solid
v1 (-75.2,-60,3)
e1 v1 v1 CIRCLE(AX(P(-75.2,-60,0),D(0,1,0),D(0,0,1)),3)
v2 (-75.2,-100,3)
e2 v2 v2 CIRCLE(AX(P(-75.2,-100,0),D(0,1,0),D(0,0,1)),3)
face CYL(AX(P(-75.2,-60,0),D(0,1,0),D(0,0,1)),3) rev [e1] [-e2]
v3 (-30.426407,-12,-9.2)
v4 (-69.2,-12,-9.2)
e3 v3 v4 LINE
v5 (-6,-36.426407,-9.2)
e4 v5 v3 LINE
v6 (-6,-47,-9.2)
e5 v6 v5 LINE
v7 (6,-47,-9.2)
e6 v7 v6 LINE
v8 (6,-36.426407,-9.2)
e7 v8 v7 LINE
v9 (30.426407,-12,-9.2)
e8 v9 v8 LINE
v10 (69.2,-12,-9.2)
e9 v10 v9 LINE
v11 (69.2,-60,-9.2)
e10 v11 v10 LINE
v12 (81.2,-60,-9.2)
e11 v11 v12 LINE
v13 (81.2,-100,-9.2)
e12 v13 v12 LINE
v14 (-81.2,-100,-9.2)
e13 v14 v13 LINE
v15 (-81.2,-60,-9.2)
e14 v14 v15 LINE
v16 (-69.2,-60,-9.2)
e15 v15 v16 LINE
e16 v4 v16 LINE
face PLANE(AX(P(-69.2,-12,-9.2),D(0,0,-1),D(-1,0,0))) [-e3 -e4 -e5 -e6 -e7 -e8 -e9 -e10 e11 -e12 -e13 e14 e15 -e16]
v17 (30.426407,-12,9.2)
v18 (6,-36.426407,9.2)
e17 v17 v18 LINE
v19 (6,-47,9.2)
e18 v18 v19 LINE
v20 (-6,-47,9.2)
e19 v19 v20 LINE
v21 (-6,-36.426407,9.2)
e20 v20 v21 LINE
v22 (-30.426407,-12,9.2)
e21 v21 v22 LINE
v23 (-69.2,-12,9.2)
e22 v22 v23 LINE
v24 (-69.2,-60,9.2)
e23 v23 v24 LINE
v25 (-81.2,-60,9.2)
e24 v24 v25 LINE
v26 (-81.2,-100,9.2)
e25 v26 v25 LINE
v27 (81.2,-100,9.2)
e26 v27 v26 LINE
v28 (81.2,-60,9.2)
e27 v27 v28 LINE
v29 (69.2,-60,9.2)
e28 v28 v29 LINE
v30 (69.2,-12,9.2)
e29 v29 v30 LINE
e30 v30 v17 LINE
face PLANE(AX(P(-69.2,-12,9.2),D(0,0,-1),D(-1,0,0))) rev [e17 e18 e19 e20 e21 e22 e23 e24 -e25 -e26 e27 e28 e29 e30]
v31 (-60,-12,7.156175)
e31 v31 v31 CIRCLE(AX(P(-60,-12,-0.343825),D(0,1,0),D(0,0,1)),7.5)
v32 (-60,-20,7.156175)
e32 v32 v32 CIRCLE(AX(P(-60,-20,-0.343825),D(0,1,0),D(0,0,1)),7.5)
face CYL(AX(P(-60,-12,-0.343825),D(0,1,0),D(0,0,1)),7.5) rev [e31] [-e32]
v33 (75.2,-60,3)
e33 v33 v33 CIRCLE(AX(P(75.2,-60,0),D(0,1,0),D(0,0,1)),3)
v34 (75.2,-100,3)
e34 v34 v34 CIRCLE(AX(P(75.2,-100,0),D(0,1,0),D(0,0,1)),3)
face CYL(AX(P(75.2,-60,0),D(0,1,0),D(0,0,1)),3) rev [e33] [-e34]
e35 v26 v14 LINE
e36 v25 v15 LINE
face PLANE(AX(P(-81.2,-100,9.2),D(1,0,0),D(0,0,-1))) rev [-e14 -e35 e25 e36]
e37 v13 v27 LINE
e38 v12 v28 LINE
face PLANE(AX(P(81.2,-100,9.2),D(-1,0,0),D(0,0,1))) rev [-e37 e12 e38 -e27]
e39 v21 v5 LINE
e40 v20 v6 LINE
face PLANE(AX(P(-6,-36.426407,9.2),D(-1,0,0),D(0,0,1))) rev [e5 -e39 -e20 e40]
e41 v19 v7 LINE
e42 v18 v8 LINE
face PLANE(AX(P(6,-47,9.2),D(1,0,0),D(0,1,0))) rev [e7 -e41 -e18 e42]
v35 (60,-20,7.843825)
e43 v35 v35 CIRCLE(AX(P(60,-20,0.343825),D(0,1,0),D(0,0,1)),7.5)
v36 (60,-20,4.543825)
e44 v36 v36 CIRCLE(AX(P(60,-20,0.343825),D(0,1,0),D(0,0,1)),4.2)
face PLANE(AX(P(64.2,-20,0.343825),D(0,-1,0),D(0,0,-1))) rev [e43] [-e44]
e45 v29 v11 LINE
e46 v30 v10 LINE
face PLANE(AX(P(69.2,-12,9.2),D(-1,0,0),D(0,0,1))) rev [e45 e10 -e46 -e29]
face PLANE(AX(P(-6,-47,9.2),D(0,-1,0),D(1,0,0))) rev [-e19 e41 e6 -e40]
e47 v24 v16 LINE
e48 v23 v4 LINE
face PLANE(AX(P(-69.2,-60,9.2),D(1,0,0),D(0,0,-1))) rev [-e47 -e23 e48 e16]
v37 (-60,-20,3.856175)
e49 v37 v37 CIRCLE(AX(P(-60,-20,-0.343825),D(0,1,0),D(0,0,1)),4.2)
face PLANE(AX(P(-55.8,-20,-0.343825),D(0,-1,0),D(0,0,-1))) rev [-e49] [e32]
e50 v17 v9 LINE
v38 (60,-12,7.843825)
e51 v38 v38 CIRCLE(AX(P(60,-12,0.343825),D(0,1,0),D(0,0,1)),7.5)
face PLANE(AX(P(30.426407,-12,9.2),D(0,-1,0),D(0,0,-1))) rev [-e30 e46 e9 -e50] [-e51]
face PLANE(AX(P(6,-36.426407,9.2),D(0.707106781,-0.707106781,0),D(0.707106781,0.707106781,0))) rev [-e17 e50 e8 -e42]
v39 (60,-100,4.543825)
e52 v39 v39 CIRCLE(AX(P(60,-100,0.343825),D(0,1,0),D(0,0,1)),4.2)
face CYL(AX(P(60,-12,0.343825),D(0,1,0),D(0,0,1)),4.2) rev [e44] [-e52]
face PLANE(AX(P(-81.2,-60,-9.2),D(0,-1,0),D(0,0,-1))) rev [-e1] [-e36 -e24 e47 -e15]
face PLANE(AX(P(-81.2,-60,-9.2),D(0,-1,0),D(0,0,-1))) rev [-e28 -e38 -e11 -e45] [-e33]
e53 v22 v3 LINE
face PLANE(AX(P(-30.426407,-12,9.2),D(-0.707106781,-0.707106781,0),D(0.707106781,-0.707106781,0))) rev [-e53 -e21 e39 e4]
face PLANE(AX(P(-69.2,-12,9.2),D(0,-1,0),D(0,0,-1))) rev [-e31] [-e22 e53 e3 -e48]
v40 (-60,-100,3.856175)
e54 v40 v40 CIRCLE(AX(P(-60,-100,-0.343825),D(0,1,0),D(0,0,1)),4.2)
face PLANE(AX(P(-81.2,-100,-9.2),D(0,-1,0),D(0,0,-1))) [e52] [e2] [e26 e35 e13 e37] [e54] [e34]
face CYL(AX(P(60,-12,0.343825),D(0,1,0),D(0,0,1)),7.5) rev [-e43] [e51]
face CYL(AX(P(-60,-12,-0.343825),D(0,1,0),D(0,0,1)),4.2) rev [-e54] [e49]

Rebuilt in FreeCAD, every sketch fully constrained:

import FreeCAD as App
import Part
import Sketcher
from FreeCAD import Vector
Q = App.Units.Quantity

doc = App.newDocument("Part")
body = doc.addObject("PartDesign::Body", "Body")

# Sketch on XY plane
sketch1 = body.newObject("Sketcher::SketchObject", "Sketch")
sketch1.AttachmentSupport = (doc.getObject("XY_Plane"), [""])
sketch1.MapMode = "FlatFace"
sketch1.addGeometry([
    Part.LineSegment(Vector(-30, -12, 0), Vector(-69, -12, 0)),  # 0
    Part.LineSegment(Vector(-69, -12, 0), Vector(-69, -60, 0)),  # 1
    Part.LineSegment(Vector(-69, -60, 0), Vector(69, -60, 0)),  # 2
    Part.LineSegment(Vector(69, -60, 0), Vector(69, -12, 0)),  # 3
    Part.LineSegment(Vector(69, -12, 0), Vector(30, -12, 0)),  # 4
    Part.LineSegment(Vector(30, -12, 0), Vector(6, -36, 0)),  # 5
    Part.LineSegment(Vector(6, -36, 0), Vector(6, -47, 0)),  # 6
    Part.LineSegment(Vector(6, -47, 0), Vector(-6, -47, 0)),  # 7
    Part.LineSegment(Vector(-6, -47, 0), Vector(-6, -36, 0)),  # 8
    Part.LineSegment(Vector(-6, -36, 0), Vector(-30, -12, 0)),  # 9
], False)
sketch1.addConstraint([
    Sketcher.Constraint("Coincident", 0, 2, 1, 1),
    Sketcher.Constraint("Coincident", 1, 2, 2, 1),
    Sketcher.Constraint("Coincident", 2, 2, 3, 1),
    Sketcher.Constraint("Coincident", 3, 2, 4, 1),
    Sketcher.Constraint("Coincident", 4, 2, 5, 1),
    Sketcher.Constraint("Coincident", 5, 2, 6, 1),
    Sketcher.Constraint("Coincident", 6, 2, 7, 1),
    Sketcher.Constraint("Coincident", 7, 2, 8, 1),
    Sketcher.Constraint("Coincident", 8, 2, 9, 1),
    Sketcher.Constraint("Coincident", 9, 2, 0, 1),
    Sketcher.Constraint("Horizontal", 0),
    Sketcher.Constraint("Vertical", 1),
    Sketcher.Constraint("Horizontal", 2),
    Sketcher.Constraint("Vertical", 3),
    Sketcher.Constraint("Horizontal", 4),
    Sketcher.Constraint("Vertical", 6),
    Sketcher.Constraint("Horizontal", 7),
    Sketcher.Constraint("Vertical", 8),
    Sketcher.Constraint("Symmetric", 0, 2, 3, 2, -2),
    Sketcher.Constraint("Symmetric", 5, 2, 8, 2, -2),
    Sketcher.Constraint("Perpendicular", 5, 9),
    Sketcher.Constraint("Equal", 0, 4),
    Sketcher.Constraint("DistanceX", 7, 2, 7, 1, Q("12 mm")),
    Sketcher.Constraint("DistanceY", 1, 2, 1, 1, Q("48 mm")),
    Sketcher.Constraint("DistanceX", 2, 1, 2, 2, Q("138.4 mm")),
    Sketcher.Constraint("DistanceY", 0, 2, -1, 1, Q("12 mm")),
    Sketcher.Constraint("DistanceY", 6, 2, -1, 1, Q("47 mm")),
    Sketcher.Constraint("DistanceX", 0, 2, 0, 1, Q("38.773593 mm")),
])
pad1 = body.newObject("PartDesign::Pad", "Pad")
pad1.Profile = sketch1
pad1.Length = 18.4
pad1.Midplane = True

# Sketch on XZ plane
sketch2 = body.newObject("Sketcher::SketchObject", "Sketch001")
sketch2.AttachmentSupport = (doc.getObject("XZ_Plane"), [""])
sketch2.MapMode = "FlatFace"
sketch2.AttachmentOffset = App.Placement(Vector(0, 0, 60), App.Rotation())
sketch2.addGeometry([
    Part.LineSegment(Vector(-81, 9, 0), Vector(-81, -9, 0)),
    Part.LineSegment(Vector(-81, -9, 0), Vector(81, -9, 0)),
    Part.LineSegment(Vector(81, -9, 0), Vector(81, 9, 0)),
    Part.LineSegment(Vector(81, 9, 0), Vector(-81, 9, 0)),
], False)
sketch2.addConstraint([
    Sketcher.Constraint("Coincident", 0, 2, 1, 1),
    Sketcher.Constraint("Coincident", 1, 2, 2, 1),
    Sketcher.Constraint("Coincident", 2, 2, 3, 1),
    Sketcher.Constraint("Coincident", 3, 2, 0, 1),
    Sketcher.Constraint("Vertical", 0),
    Sketcher.Constraint("Horizontal", 1),
    Sketcher.Constraint("Vertical", 2),
    Sketcher.Constraint("Horizontal", 3),
    Sketcher.Constraint("Symmetric", 0, 2, 2, 2, -1, 1),
    Sketcher.Constraint("DistanceX", 1, 1, 1, 2, Q("162.4 mm")),
    Sketcher.Constraint("DistanceY", 0, 2, 0, 1, Q("18.4 mm")),
])
pad2 = body.newObject("PartDesign::Pad", "Pad001")
pad2.Profile = sketch2
pad2.Length = 40

# Sketch on XZ plane
sketch3 = body.newObject("Sketcher::SketchObject", "Sketch002")
sketch3.AttachmentSupport = (doc.getObject("XZ_Plane"), [""])
sketch3.MapMode = "FlatFace"
sketch3.AttachmentOffset = App.Placement(Vector(0, 0, 12), App.Rotation())
sketch3.addGeometry([
    Part.Circle(Vector(60, 0.3, 0), Vector(0, 0, 1), 4.2),
    Part.Circle(Vector(-60, -0.3, 0), Vector(0, 0, 1), 4.2),
], False)
sketch3.addConstraint([
    Sketcher.Constraint("Equal", 0, 1),
    Sketcher.Constraint("Symmetric", 0, 3, 1, 3, -1, 1),
    Sketcher.Constraint("Diameter", 0, Q("8.4 mm")),
    Sketcher.Constraint("DistanceX", -1, 1, 0, 3, Q("60 mm")),
    Sketcher.Constraint("DistanceY", 1, 3, 0, 3, Q("0.68765 mm")),
])
doc.recompute()
hole = body.newObject("PartDesign::Hole", "Hole")
hole.Profile = sketch3
hole.ThreadType = "None"
hole.Diameter = 8.4
hole.DepthType = "ThroughAll"
hole.HoleCutType = "Counterbore"
hole.HoleCutDiameter = 15
hole.HoleCutDepth = 8
hole.Reversed = True

# Sketch on XZ plane
sketch4 = body.newObject("Sketcher::SketchObject", "Sketch003")
sketch4.AttachmentSupport = (doc.getObject("XZ_Plane"), [""])
sketch4.MapMode = "FlatFace"
sketch4.AttachmentOffset = App.Placement(Vector(0, 0, 60), App.Rotation())
sketch4.addGeometry([
    Part.Circle(Vector(75.2, 0, 0), Vector(0, 0, 1), 3),
    Part.Circle(Vector(-75.2, 0, 0), Vector(0, 0, 1), 3),
], False)
sketch4.addConstraint([
    Sketcher.Constraint("Equal", 0, 1),
    Sketcher.Constraint("Symmetric", 0, 3, 1, 3, -1, 1),
    Sketcher.Constraint("PointOnObject", 0, 3, -1),
    Sketcher.Constraint("Diameter", 0, Q("6 mm")),
    Sketcher.Constraint("DistanceX", -1, 1, 0, 3, Q("75.2 mm")),
])
doc.recompute()
hole2 = body.newObject("PartDesign::Hole", "Hole001")
hole2.Profile = sketch4
hole2.ThreadType = "None"
hole2.Diameter = 6
hole2.DepthType = "ThroughAll"
hole2.Reversed = True

doc.recompute()
